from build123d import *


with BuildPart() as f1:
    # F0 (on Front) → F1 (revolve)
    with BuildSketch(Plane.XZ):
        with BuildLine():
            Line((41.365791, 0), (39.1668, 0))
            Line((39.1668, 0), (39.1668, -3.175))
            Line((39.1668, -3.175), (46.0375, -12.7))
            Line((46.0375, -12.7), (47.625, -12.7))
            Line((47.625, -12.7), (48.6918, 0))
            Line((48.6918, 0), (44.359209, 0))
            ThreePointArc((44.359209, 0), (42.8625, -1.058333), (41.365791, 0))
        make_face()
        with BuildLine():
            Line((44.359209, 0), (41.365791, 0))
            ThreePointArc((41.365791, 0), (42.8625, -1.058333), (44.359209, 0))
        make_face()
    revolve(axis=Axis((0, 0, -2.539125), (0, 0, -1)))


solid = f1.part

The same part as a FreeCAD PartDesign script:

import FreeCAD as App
import Part
import Sketcher

V = App.Vector
Q = App.Units.Quantity

doc = App.newDocument("Part")
params = doc.addObject("Spreadsheet::Sheet", "Params")
for row, (alias, value) in enumerate([
    ("sketch1_width", "0.0625 in"),
    ("sketch1_width2", "0.375 in"),
    ("sketch1_height", "0.125 in"),
    ("revolution_angle", "360 deg"),
], start=1):
    params.set(f"A{row}", alias)
    params.set(f"B{row}", "=" + value)
    params.setAlias(f"B{row}", alias)

body = doc.addObject("PartDesign::Body", "Body")

# Sketch on XZ plane
sketch1 = doc.addObject("Sketcher::SketchObject", "Sketch")
body.addObject(sketch1)
sketch1.AttachmentSupport = (doc.XZ_Plane, [""])
sketch1.MapMode = "FlatFace"
sketch1.addGeometry([
    Part.LineSegment(V(39.2, 0, 0), V(39.2, -3.2, 0)),  # 0
    Part.LineSegment(V(39.2, -3.2, 0), V(46, -12.7, 0)),  # 1
    Part.LineSegment(V(46, -12.7, 0), V(47.6, -12.7, 0)),  # 2
    Part.LineSegment(V(47.6, -12.7, 0), V(48.7, 0, 0)),  # 3
    Part.LineSegment(V(48.7, 0, 0), V(39.2, 0, 0)),  # 4
], False)
sketch1.addConstraint([
    Sketcher.Constraint("Coincident", 0, 2, 1, 1),
    Sketcher.Constraint("Coincident", 1, 2, 2, 1),
    Sketcher.Constraint("Coincident", 2, 2, 3, 1),
    Sketcher.Constraint("Coincident", 3, 2, 4, 1),
    Sketcher.Constraint("Coincident", 4, 2, 0, 1),
    Sketcher.Constraint("Vertical", 0),
    Sketcher.Constraint("Horizontal", 2),
    Sketcher.Constraint("Horizontal", 4),
    Sketcher.Constraint("PointOnObject", 3, 2, -1),
    Sketcher.Constraint("DistanceY", 1, 2, -1, 1, Q("0.5 in")),
    Sketcher.Constraint("DistanceX", 2, 1, 2, 2, Q("0.0625 in")),
    Sketcher.Constraint("DistanceX", 4, 2, 4, 1, Q("0.375 in")),
    Sketcher.Constraint("DistanceY", 0, 2, 0, 1, Q("0.125 in")),
    Sketcher.Constraint("DistanceX", -1, 1, 0, 2, Q("1.542 in")),
    Sketcher.Constraint("DistanceX", -1, 1, 1, 2, Q("1.8125 in")),
])
sketch1.setExpression("Constraints[10]", "Params.sketch1_width")
sketch1.setExpression("Constraints[11]", "Params.sketch1_width2")
sketch1.setExpression("Constraints[12]", "Params.sketch1_height")
revolution = doc.addObject("PartDesign::Revolution", "Revolution")
body.addObject(revolution)
revolution.Profile = sketch1
revolution.ReferenceAxis = (sketch1, ["V_Axis"])
revolution.setExpression("Angle", "Params.revolution_angle")

doc.recompute()
